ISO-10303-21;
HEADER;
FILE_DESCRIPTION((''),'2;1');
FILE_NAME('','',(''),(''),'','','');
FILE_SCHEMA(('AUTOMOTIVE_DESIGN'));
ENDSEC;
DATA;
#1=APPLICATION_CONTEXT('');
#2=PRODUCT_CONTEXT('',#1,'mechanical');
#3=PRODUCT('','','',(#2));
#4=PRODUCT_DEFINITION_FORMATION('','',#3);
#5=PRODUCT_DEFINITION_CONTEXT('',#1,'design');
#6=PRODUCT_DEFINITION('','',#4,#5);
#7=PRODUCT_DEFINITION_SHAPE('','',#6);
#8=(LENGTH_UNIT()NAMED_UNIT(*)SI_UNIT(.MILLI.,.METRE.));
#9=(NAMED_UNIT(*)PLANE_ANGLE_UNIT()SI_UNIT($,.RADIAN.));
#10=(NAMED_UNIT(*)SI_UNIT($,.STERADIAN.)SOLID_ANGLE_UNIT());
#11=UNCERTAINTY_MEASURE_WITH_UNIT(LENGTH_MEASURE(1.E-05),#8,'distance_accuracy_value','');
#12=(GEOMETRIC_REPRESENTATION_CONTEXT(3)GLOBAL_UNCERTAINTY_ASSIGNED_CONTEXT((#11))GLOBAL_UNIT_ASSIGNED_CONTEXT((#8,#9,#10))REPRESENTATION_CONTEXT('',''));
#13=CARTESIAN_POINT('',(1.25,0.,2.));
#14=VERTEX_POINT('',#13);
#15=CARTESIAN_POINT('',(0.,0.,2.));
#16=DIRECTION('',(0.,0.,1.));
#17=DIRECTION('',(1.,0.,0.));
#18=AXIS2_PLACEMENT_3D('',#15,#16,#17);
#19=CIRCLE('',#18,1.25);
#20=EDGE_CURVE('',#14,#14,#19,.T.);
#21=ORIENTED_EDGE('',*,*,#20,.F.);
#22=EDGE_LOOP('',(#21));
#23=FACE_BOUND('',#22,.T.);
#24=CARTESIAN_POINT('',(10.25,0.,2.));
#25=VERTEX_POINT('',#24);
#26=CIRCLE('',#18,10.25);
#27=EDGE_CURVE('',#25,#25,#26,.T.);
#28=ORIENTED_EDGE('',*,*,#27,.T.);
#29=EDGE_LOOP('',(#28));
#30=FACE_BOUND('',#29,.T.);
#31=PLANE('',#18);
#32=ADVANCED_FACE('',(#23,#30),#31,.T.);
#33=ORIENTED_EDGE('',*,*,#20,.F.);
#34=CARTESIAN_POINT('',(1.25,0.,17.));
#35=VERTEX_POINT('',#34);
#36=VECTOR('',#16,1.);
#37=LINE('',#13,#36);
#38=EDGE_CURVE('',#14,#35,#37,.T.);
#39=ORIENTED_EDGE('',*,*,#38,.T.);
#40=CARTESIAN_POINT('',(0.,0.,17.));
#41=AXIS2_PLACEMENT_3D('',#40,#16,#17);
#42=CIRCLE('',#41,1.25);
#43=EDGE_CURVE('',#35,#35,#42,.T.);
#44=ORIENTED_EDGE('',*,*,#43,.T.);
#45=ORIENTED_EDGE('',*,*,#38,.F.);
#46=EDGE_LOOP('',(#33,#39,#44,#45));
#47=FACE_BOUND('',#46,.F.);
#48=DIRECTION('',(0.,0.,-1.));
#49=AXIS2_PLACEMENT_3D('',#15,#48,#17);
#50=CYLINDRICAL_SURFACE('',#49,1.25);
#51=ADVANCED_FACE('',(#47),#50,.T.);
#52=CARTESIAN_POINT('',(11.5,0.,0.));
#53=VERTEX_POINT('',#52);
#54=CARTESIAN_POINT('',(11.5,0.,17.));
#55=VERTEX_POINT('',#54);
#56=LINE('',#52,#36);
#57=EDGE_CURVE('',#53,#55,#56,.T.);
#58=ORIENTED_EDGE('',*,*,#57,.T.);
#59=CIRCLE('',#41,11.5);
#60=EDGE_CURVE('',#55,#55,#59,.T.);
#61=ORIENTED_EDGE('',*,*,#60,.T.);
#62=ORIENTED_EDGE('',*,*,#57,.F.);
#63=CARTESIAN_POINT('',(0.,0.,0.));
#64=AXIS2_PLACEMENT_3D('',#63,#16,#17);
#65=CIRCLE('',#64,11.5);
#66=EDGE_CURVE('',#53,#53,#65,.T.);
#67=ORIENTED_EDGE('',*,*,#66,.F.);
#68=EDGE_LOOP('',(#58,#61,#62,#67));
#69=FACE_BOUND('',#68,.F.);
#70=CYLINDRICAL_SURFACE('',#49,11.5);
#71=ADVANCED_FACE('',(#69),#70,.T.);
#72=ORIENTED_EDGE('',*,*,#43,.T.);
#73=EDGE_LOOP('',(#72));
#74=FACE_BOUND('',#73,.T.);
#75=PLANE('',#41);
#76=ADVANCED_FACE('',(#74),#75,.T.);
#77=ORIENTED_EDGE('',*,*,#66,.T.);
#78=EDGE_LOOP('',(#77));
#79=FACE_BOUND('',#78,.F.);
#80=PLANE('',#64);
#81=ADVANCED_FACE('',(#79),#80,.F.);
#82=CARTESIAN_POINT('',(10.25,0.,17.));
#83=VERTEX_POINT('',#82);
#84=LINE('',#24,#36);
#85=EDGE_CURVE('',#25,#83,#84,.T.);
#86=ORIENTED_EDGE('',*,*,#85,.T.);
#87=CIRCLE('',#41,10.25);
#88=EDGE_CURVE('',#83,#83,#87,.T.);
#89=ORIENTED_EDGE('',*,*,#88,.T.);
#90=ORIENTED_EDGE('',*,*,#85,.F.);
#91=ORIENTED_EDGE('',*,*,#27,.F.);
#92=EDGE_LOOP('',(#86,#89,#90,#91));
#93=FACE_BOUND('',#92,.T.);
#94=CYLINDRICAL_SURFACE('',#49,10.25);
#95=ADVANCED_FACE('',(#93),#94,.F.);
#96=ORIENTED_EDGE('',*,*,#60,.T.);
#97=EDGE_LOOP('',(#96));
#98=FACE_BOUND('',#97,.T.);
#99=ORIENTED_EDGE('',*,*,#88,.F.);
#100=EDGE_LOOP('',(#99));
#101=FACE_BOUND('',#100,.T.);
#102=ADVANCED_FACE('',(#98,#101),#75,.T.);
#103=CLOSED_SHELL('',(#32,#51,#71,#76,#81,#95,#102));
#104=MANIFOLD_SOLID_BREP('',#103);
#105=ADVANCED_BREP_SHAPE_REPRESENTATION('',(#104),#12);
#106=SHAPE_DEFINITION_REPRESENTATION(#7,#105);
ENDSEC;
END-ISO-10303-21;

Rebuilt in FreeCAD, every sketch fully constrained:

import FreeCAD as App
import Part
import Sketcher

doc = App.newDocument("Part")
params = doc.addObject("Spreadsheet::Sheet", "Params")
for row, (alias, value) in enumerate([
    ("sketch1_diameter", "23 mm"),
    ("pad1_length", "2 mm"),
    ("sketch2_diameter", "23 mm"),
    ("sketch2_diameter2", "20.5 mm"),
    ("pad2_length", "15 mm"),
    ("sketch3_diameter", "2.5 mm"),
    ("pad3_length", "15 mm"),
], start=1):
    params.set(f"A{row}", alias)
    params.set(f"B{row}", "=" + value)
    params.setAlias(f"B{row}", alias)

body = doc.addObject("PartDesign::Body", "Body")

sketch1 = doc.addObject("Sketcher::SketchObject", "Sketch")
body.addObject(sketch1)
sketch1.AttachmentSupport = (doc.XY_Plane, [""])
sketch1.MapMode = "FlatFace"
sketch1.addGeometry(Part.Circle(App.Vector(0, 0, 0), App.Vector(0, 0, 1), 12), False)
sketch1.addConstraint(Sketcher.Constraint("Coincident", 0, 3, -1, 1))
sketch1.addConstraint(Sketcher.Constraint("Diameter", 0, 23.0))
sketch1.setExpression("Constraints[1]", "Params.sketch1_diameter")
pad1 = doc.addObject("PartDesign::Pad", "Pad")
body.addObject(pad1)
pad1.Profile = sketch1
pad1.setExpression("Length", "Params.pad1_length")

sketch2 = doc.addObject("Sketcher::SketchObject", "Sketch001")
body.addObject(sketch2)
sketch2.AttachmentSupport = (doc.XY_Plane, [""])
sketch2.MapMode = "FlatFace"
sketch2.AttachmentOffset = App.Placement(App.Vector(0, 0, 2), App.Rotation())
sketch2.addGeometry(Part.Circle(App.Vector(0, 0, 0), App.Vector(0, 0, 1), 12), False)
sketch2.addGeometry(Part.Circle(App.Vector(0, 0, 0), App.Vector(0, 0, 1), 10), False)
sketch2.addConstraint(Sketcher.Constraint("Coincident", 0, 3, -1, 1))
sketch2.addConstraint(Sketcher.Constraint("Coincident", 1, 3, -1, 1))
sketch2.addConstraint(Sketcher.Constraint("Diameter", 0, 23.0))
sketch2.addConstraint(Sketcher.Constraint("Diameter", 1, 20.5))
sketch2.setExpression("Constraints[2]", "Params.sketch2_diameter")
sketch2.setExpression("Constraints[3]", "Params.sketch2_diameter2")
pad2 = doc.addObject("PartDesign::Pad", "Pad001")
body.addObject(pad2)
pad2.Profile = sketch2
pad2.setExpression("Length", "Params.pad2_length")

sketch3 = doc.addObject("Sketcher::SketchObject", "Sketch002")
body.addObject(sketch3)
sketch3.AttachmentSupport = (doc.XY_Plane, [""])
sketch3.MapMode = "FlatFace"
sketch3.AttachmentOffset = App.Placement(App.Vector(0, 0, 2), App.Rotation())
sketch3.addGeometry(Part.Circle(App.Vector(0, 0, 0), App.Vector(0, 0, 1), 1.2), False)
sketch3.addConstraint(Sketcher.Constraint("Coincident", 0, 3, -1, 1))
sketch3.addConstraint(Sketcher.Constraint("Diameter", 0, 2.5))
sketch3.setExpression("Constraints[1]", "Params.sketch3_diameter")
pad3 = doc.addObject("PartDesign::Pad", "Pad002")
body.addObject(pad3)
pad3.Profile = sketch3
pad3.setExpression("Length", "Params.pad3_length")

doc.recompute()
